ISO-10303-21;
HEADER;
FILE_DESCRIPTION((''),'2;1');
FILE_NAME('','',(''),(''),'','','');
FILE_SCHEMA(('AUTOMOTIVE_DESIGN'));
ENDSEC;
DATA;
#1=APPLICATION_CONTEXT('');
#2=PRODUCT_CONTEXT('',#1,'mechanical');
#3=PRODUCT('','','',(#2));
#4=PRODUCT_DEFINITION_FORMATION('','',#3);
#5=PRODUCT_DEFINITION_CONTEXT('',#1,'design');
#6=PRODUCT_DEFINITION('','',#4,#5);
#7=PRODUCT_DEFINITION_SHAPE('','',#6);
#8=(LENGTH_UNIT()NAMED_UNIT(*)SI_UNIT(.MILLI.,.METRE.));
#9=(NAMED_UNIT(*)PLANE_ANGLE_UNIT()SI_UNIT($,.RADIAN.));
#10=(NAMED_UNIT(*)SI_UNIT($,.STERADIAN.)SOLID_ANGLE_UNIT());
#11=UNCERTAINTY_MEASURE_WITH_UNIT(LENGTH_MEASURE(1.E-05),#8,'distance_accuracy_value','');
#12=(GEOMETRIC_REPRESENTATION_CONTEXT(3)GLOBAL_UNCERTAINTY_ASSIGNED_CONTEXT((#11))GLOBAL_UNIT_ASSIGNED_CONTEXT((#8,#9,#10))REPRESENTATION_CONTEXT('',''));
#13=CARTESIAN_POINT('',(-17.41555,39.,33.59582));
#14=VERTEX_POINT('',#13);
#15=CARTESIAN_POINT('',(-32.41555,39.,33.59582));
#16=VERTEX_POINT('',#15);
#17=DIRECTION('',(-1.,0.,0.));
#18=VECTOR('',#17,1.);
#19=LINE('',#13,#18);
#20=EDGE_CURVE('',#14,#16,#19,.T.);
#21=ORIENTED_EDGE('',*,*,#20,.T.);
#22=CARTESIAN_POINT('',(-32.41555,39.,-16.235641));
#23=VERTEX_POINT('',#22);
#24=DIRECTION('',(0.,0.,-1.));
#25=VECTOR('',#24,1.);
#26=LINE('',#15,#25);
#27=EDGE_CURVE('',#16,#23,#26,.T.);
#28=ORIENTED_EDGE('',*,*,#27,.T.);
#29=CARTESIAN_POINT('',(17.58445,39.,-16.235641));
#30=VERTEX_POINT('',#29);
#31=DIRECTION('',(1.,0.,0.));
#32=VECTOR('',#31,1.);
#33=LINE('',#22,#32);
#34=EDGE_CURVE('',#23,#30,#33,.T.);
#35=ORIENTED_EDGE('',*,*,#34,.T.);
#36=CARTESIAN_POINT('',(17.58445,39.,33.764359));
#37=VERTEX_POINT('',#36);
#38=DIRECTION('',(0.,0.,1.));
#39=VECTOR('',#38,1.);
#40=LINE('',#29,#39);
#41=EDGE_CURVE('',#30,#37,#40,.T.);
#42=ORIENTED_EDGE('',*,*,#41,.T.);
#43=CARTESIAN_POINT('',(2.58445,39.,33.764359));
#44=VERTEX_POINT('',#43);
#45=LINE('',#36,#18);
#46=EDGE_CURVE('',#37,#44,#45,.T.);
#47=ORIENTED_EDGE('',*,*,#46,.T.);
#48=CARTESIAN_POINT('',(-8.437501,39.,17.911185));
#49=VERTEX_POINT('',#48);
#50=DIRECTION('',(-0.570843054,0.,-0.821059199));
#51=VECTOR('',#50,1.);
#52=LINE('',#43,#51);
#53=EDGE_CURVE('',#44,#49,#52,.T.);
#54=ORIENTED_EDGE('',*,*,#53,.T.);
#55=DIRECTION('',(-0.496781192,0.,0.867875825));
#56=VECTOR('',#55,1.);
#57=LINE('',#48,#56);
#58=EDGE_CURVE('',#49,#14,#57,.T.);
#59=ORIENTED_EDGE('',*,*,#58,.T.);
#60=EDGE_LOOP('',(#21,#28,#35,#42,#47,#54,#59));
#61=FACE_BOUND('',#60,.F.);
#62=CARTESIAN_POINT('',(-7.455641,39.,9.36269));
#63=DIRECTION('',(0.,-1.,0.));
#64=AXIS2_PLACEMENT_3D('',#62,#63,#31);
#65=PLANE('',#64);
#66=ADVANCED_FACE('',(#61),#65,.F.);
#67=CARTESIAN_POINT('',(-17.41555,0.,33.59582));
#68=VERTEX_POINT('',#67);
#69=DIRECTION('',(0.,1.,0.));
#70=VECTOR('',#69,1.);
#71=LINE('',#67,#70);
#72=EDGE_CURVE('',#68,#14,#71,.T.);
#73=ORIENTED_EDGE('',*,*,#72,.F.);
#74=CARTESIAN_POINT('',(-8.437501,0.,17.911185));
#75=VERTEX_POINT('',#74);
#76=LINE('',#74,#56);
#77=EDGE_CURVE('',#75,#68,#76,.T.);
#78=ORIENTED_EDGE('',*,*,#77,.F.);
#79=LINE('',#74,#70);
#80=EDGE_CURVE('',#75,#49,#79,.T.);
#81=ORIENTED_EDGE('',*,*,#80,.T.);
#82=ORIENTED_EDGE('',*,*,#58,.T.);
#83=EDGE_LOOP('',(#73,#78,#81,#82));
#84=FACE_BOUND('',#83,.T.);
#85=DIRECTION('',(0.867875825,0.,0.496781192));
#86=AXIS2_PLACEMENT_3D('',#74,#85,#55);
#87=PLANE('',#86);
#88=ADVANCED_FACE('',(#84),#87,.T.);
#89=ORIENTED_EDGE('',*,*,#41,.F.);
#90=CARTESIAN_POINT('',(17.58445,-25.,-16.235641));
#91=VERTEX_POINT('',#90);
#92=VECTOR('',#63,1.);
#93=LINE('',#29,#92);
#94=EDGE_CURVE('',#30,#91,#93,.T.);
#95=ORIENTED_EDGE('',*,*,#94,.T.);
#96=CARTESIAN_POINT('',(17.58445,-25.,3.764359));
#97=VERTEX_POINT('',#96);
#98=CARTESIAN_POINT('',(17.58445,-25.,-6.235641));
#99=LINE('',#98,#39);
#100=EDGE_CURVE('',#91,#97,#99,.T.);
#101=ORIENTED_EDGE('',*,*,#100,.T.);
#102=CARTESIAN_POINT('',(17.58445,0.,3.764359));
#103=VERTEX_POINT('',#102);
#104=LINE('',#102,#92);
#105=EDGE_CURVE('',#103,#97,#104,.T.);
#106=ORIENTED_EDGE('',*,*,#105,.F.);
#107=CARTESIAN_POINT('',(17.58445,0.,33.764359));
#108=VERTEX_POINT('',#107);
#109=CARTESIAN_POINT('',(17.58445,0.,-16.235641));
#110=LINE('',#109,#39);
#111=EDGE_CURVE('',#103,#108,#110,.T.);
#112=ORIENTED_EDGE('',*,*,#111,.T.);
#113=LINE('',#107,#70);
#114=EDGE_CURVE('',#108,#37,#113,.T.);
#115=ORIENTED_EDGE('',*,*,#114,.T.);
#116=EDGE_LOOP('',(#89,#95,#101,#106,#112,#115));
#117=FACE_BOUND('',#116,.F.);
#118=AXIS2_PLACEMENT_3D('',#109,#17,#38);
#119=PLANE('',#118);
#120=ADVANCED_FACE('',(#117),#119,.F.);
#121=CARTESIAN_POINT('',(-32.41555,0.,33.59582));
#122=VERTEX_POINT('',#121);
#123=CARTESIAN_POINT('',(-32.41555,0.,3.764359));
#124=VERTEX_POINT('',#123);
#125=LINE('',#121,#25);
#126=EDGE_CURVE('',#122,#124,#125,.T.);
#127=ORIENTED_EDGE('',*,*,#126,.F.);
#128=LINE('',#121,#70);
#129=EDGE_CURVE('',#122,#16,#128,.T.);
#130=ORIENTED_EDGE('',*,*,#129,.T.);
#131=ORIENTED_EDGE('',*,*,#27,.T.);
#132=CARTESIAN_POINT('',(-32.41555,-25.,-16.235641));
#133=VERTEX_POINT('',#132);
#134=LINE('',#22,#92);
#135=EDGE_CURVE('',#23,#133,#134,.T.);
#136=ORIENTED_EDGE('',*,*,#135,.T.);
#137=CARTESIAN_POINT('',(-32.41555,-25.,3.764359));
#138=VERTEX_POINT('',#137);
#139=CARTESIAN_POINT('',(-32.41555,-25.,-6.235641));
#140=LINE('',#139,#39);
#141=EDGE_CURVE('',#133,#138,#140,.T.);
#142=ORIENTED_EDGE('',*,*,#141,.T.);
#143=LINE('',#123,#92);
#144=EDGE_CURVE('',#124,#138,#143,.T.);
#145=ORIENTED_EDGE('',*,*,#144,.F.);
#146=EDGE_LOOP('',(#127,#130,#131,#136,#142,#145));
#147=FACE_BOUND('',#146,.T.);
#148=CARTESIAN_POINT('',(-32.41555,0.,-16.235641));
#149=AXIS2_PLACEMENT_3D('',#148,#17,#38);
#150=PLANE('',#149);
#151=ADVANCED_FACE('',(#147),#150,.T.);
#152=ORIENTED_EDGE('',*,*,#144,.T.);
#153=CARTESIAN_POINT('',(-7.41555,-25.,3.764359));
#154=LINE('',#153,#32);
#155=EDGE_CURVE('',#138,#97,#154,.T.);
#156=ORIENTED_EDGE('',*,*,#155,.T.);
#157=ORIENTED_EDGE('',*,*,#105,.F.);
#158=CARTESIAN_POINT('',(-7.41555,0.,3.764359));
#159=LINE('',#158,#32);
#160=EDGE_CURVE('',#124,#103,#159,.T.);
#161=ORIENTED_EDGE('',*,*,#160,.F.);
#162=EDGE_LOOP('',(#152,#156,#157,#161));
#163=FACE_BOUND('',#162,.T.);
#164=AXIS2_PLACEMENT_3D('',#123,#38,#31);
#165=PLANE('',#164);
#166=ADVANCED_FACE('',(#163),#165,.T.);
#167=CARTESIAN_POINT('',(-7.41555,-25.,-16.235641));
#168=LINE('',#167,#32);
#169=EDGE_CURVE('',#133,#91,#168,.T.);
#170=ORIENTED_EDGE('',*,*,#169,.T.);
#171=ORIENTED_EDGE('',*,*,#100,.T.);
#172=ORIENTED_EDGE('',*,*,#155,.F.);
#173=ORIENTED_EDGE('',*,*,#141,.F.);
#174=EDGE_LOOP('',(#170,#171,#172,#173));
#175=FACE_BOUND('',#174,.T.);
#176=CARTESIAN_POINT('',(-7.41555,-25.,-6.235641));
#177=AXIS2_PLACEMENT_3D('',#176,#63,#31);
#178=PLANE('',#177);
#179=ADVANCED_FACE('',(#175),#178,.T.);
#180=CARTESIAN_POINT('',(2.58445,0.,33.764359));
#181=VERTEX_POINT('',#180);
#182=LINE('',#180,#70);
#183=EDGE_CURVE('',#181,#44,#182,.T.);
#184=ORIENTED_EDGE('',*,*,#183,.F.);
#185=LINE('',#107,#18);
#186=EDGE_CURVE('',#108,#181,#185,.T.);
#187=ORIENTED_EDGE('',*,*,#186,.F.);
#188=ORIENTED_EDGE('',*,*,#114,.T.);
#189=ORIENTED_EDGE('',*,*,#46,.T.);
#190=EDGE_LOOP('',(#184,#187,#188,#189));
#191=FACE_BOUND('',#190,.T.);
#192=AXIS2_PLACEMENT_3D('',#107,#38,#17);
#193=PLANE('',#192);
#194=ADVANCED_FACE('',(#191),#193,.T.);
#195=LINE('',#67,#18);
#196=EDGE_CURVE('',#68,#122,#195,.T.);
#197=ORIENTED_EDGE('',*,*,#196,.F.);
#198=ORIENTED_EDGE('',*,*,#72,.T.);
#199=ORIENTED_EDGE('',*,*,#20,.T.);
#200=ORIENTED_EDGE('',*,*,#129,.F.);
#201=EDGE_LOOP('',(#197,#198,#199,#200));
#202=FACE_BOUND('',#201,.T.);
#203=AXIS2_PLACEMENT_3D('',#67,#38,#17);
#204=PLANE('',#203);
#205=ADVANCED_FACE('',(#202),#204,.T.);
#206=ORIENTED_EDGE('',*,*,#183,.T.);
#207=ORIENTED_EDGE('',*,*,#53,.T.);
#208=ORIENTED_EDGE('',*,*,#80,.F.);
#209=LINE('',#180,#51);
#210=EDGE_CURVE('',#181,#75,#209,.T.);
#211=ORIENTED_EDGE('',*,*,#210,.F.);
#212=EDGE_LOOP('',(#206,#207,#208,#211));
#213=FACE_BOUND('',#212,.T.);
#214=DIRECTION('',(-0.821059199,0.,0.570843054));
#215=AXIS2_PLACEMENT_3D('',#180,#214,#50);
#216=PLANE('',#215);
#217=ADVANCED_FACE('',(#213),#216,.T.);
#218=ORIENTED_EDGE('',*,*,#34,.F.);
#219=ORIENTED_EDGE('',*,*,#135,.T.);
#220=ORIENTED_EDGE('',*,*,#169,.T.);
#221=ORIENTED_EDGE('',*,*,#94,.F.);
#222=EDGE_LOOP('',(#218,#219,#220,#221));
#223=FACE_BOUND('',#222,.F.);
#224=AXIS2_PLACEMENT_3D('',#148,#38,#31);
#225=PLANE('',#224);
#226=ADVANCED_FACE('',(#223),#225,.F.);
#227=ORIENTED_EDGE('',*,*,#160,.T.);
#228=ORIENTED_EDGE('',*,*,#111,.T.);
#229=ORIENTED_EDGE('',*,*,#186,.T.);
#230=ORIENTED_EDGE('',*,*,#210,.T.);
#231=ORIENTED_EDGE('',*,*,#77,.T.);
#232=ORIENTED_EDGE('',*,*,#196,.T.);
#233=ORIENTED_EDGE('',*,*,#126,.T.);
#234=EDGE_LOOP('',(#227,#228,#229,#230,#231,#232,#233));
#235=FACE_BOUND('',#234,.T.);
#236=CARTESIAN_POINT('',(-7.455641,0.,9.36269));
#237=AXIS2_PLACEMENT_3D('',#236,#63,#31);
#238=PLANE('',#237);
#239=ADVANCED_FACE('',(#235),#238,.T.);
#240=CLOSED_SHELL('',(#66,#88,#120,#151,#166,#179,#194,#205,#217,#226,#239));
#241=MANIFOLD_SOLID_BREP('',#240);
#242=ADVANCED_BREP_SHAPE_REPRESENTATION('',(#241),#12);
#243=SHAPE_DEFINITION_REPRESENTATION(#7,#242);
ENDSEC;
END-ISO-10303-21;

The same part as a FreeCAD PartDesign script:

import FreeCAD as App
import Part
import Sketcher
from FreeCAD import Vector
Q = App.Units.Quantity


def add_polygon(sketch, points):
    """Adds a closed chain of lines whose ends are joined by coincident constraints."""
    first, n = sketch.GeometryCount, len(points)
    for a, b in zip(points, points[1:] + points[:1]):
        sketch.addGeometry(Part.LineSegment(App.Vector(*a, 0), App.Vector(*b, 0)), False)
    for i in range(n):
        sketch.addConstraint(Sketcher.Constraint("Coincident", first + i, 2, first + (i + 1) % n, 1))

doc = App.newDocument("Part")
body = doc.addObject("PartDesign::Body", "Body")

sketch1 = doc.addObject("Sketcher::SketchObject", "Sketch")
body.addObject(sketch1)
sketch1.AttachmentSupport = (doc.XZ_Plane, [""])
sketch1.MapMode = "FlatFace"
add_polygon(sketch1, [(-17, 34), (-32, 34), (-32, -16), (18, -16), (18, 34), (3, 34), (-8, 18)])
sketch1.addConstraint(Sketcher.Constraint("Horizontal", 0))
sketch1.addConstraint(Sketcher.Constraint("Vertical", 1))
sketch1.addConstraint(Sketcher.Constraint("Horizontal", 2))
sketch1.addConstraint(Sketcher.Constraint("Vertical", 3))
sketch1.addConstraint(Sketcher.Constraint("Horizontal", 4))
sketch1.addConstraint(Sketcher.Constraint("Equal", 0, 4))
sketch1.addConstraint(Sketcher.Constraint("Equal", 2, 3))
sketch1.addConstraint(Sketcher.Constraint("DistanceX", 0, 2, 0, 1, Q("15 mm")))
sketch1.addConstraint(Sketcher.Constraint("DistanceX", 2, 1, 2, 2, Q("50 mm")))
sketch1.addConstraint(Sketcher.Constraint("Distance", 5, Q("19.308199 mm")))
sketch1.addConstraint(Sketcher.Constraint("DistanceY", 1, 2, 1, 1, Q("49.831461 mm")))
sketch1.addConstraint(Sketcher.Constraint("DistanceX", 5, 2, -1, 1, Q("8.437501 mm")))
sketch1.addConstraint(Sketcher.Constraint("Distance", 6, Q("18.072441 mm")))
sketch1.addConstraint(Sketcher.Constraint("DistanceY", -1, 1, 0, 2, Q("33.59582 mm")))
pad1 = doc.addObject("PartDesign::Pad", "Pad")
body.addObject(pad1)
pad1.Profile = sketch1
pad1.Length = 39
pad1.Reversed = True

sketch2 = doc.addObject("Sketcher::SketchObject", "Sketch001")
body.addObject(sketch2)
sketch2.AttachmentSupport = (doc.XZ_Plane, [""])
sketch2.MapMode = "FlatFace"
add_polygon(sketch2, [(-32, 4), (-32, -16), (18, -16), (18, 4)])
sketch2.addConstraint(Sketcher.Constraint("Vertical", 0))
sketch2.addConstraint(Sketcher.Constraint("Horizontal", 1))
sketch2.addConstraint(Sketcher.Constraint("Vertical", 2))
sketch2.addConstraint(Sketcher.Constraint("Horizontal", 3))
sketch2.addConstraint(Sketcher.Constraint("DistanceX", 1, 1, 1, 2, Q("50 mm")))
sketch2.addConstraint(Sketcher.Constraint("DistanceY", 0, 2, 0, 1, Q("20 mm")))
sketch2.addConstraint(Sketcher.Constraint("DistanceX", 0, 2, -1, 1, Q("32.41555 mm")))
sketch2.addConstraint(Sketcher.Constraint("DistanceY", 0, 2, -1, 1, Q("16.235641 mm")))
pad2 = doc.addObject("PartDesign::Pad", "Pad001")
body.addObject(pad2)
pad2.Profile = sketch2
pad2.Length = 25

doc.recompute()
